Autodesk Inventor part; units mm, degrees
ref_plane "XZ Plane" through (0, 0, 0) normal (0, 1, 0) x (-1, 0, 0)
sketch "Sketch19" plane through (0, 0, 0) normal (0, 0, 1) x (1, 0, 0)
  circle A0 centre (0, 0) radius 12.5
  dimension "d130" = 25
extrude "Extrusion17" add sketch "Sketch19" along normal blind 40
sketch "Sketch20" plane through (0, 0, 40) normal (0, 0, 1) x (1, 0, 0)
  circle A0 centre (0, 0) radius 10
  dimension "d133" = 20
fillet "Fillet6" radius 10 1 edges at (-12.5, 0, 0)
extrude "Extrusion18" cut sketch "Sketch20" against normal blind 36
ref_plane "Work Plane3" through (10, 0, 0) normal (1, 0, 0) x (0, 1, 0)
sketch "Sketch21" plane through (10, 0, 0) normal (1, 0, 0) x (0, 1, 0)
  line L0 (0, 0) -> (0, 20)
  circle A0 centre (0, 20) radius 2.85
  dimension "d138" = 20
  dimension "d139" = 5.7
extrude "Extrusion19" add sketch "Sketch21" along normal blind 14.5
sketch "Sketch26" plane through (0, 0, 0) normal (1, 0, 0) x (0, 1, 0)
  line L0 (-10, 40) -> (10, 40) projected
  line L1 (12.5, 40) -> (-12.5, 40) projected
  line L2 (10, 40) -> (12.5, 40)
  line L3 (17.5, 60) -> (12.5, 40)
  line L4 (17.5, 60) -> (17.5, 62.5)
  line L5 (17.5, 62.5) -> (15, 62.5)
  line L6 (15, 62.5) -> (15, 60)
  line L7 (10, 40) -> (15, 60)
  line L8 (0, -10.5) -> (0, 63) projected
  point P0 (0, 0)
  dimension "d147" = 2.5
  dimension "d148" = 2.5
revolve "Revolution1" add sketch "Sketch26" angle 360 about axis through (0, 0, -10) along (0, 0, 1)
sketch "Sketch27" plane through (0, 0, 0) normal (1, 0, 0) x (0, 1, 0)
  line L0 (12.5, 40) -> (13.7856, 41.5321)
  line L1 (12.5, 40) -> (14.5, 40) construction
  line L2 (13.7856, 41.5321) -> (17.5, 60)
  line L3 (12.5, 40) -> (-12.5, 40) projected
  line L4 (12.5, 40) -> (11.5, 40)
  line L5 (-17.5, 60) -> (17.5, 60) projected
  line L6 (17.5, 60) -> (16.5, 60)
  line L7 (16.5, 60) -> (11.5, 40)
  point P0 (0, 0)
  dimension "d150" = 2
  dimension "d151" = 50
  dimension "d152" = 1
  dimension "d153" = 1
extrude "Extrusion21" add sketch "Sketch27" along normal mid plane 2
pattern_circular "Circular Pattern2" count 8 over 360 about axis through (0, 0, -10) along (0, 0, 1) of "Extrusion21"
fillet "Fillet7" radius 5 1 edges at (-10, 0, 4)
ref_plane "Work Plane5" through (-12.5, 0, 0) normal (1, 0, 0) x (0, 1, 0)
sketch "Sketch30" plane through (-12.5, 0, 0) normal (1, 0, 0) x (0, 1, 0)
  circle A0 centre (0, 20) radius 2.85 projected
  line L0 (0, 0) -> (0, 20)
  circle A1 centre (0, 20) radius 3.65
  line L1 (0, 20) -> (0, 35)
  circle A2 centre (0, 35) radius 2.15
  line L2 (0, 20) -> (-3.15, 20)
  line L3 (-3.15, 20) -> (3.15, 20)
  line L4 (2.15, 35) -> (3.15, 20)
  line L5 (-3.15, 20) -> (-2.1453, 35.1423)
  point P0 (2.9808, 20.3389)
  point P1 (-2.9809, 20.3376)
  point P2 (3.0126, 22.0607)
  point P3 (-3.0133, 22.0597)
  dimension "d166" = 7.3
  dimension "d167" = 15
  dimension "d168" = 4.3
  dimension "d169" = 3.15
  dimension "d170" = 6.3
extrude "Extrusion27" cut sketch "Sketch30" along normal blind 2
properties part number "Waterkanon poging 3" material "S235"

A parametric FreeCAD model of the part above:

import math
import FreeCAD as App
import Part
import Sketcher

V = App.Vector
Q = App.Units.Quantity


def edges_at(feature, points):
    """Names of the edges that pass closest to the given points."""
    edges = feature.Shape.Edges
    near = lambda p: min(range(len(edges)), key=lambda i: edges[i].distToShape(Part.Vertex(*p))[0])
    return sorted({f"Edge{near(p) + 1}" for p in points})

doc = App.newDocument("Part")
body = doc.addObject("PartDesign::Body", "Body")

sketch1 = doc.addObject("Sketcher::SketchObject", "Sketch")
body.addObject(sketch1)
sketch1.AttachmentSupport = (doc.XY_Plane, [""])
sketch1.MapMode = "FlatFace"
sketch1.addGeometry(Part.Circle(V(0, 0, 0), V(0, 0, 1), 12), False)
sketch1.addConstraint([
    Sketcher.Constraint("Coincident", 0, 3, -1, 1),
    Sketcher.Constraint("Diameter", 0, Q("25 mm")),
])
pad1 = doc.addObject("PartDesign::Pad", "Pad")
body.addObject(pad1)
pad1.Profile = sketch1
pad1.Length = 40
doc.recompute()

fillet = doc.addObject("PartDesign::Fillet", "Fillet")
body.addObject(fillet)
fillet.Base = (pad1, edges_at(pad1, [(-12.5, 0, 0)]))
fillet.Radius = 10

sketch2 = doc.addObject("Sketcher::SketchObject", "Sketch001")
body.addObject(sketch2)
sketch2.AttachmentSupport = (doc.XY_Plane, [""])
sketch2.MapMode = "FlatFace"
sketch2.AttachmentOffset = App.Placement(V(0, 0, 40), App.Rotation())
sketch2.addGeometry(Part.Circle(V(0, 0, 0), V(0, 0, 1), 10), False)
sketch2.addConstraint([
    Sketcher.Constraint("Coincident", 0, 3, -1, 1),
    Sketcher.Constraint("Diameter", 0, Q("20 mm")),
])
pocket1 = doc.addObject("PartDesign::Pocket", "Pocket")
body.addObject(pocket1)
pocket1.Profile = sketch2
pocket1.Length = 36

sketch3 = doc.addObject("Sketcher::SketchObject", "Sketch002")
body.addObject(sketch3)
sketch3.AttachmentSupport = (doc.YZ_Plane, [""])
sketch3.MapMode = "FlatFace"
sketch3.AttachmentOffset = App.Placement(V(0, 0, 10), App.Rotation())
sketch3.addGeometry(Part.Circle(V(0, 20, 0), V(0, 0, 1), 2.9), False)
sketch3.addConstraint([
    Sketcher.Constraint("PointOnObject", 0, 3, -2),
    Sketcher.Constraint("Diameter", 0, Q("5.7 mm")),
    Sketcher.Constraint("DistanceY", -1, 1, 0, 3, Q("20 mm")),
])
pad2 = doc.addObject("PartDesign::Pad", "Pad001")
body.addObject(pad2)
pad2.Profile = sketch3
pad2.Length = 14.5

sketch4 = doc.addObject("Sketcher::SketchObject", "Sketch003")
body.addObject(sketch4)
sketch4.AttachmentSupport = (doc.YZ_Plane, [""])
sketch4.MapMode = "FlatFace"
sketch4.addGeometry([
    Part.LineSegment(V(10, 40, 0), V(12.5, 40, 0)),
    Part.LineSegment(V(12.5, 40, 0), V(17.5, 60, 0)),
    Part.LineSegment(V(17.5, 60, 0), V(17.5, 62.5, 0)),
    Part.LineSegment(V(17.5, 62.5, 0), V(15, 62.5, 0)),
    Part.LineSegment(V(15, 62.5, 0), V(15, 60, 0)),
    Part.LineSegment(V(15, 60, 0), V(10, 40, 0)),
], False)
sketch4.addConstraint([
    Sketcher.Constraint("Coincident", 0, 2, 1, 1),
    Sketcher.Constraint("Coincident", 1, 2, 2, 1),
    Sketcher.Constraint("Coincident", 2, 2, 3, 1),
    Sketcher.Constraint("Coincident", 3, 2, 4, 1),
    Sketcher.Constraint("Coincident", 4, 2, 5, 1),
    Sketcher.Constraint("Coincident", 5, 2, 0, 1),
    Sketcher.Constraint("Horizontal", 0),
    Sketcher.Constraint("Vertical", 2),
    Sketcher.Constraint("Horizontal", 3),
    Sketcher.Constraint("Vertical", 4),
    Sketcher.Constraint("Parallel", 1, 5),
    Sketcher.Constraint("Horizontal", 1, 2, 4, 2),
    Sketcher.Constraint("Equal", 3, 2),
    Sketcher.Constraint("DistanceX", 0, 1, 0, 2, Q("2.5 mm")),
    Sketcher.Constraint("DistanceX", 0, 2, 3, 2, Q("2.5 mm")),
    Sketcher.Constraint("DistanceY", -1, 1, 0, 2, Q("40 mm")),
    Sketcher.Constraint("DistanceY", -1, 1, 1, 2, Q("60 mm")),
    Sketcher.Constraint("DistanceX", -1, 1, 3, 2, Q("15 mm")),
])
revolution = doc.addObject("PartDesign::Revolution", "Revolution")
body.addObject(revolution)
revolution.Profile = sketch4
revolution.ReferenceAxis = (sketch4, ["V_Axis"])
revolution.Angle = 360

sketch5 = doc.addObject("Sketcher::SketchObject", "Sketch004")
body.addObject(sketch5)
sketch5.AttachmentSupport = (doc.YZ_Plane, [""])
sketch5.MapMode = "FlatFace"
sketch5.addGeometry([
    Part.LineSegment(V(11.5, 40, 0), V(12.5, 40, 0)),
    Part.LineSegment(V(12.5, 40, 0), V(13.8, 41.5, 0)),
    Part.LineSegment(V(13.8, 41.5, 0), V(17.5, 60, 0)),
    Part.LineSegment(V(17.5, 60, 0), V(16.5, 60, 0)),
    Part.LineSegment(V(16.5, 60, 0), V(11.5, 40, 0)),
], False)
sketch5.addConstraint([
    Sketcher.Constraint("Coincident", 0, 2, 1, 1),
    Sketcher.Constraint("Coincident", 1, 2, 2, 1),
    Sketcher.Constraint("Coincident", 2, 2, 3, 1),
    Sketcher.Constraint("Coincident", 3, 2, 4, 1),
    Sketcher.Constraint("Coincident", 4, 2, 0, 1),
    Sketcher.Constraint("Horizontal", 0),
    Sketcher.Constraint("Horizontal", 3),
    Sketcher.Constraint("Equal", 0, 3),
    Sketcher.Constraint("DistanceX", 0, 1, 0, 2, Q("1 mm")),
    Sketcher.Constraint("Angle", 1, Q("49.9997 deg")),
    Sketcher.Constraint("Distance", 1, Q("2 mm")),
    Sketcher.Constraint("DistanceY", -1, 1, 0, 2, Q("40 mm")),
    Sketcher.Constraint("DistanceY", -1, 1, 2, 2, Q("60 mm")),
    Sketcher.Constraint("DistanceX", 0, 2, 2, 2, Q("5 mm")),
    Sketcher.Constraint("DistanceX", -1, 1, 0, 2, Q("12.5 mm")),
])
pad3 = doc.addObject("PartDesign::Pad", "Pad002")
body.addObject(pad3)
pad3.Profile = sketch5
pad3.Length = 2
pad3.Midplane = True
doc.recompute()

polarpattern = doc.addObject("PartDesign::PolarPattern", "PolarPattern")
body.addObject(polarpattern)
polarpattern.Originals = [pad3]
polarpattern.Axis = (doc.Z_Axis, [""])
polarpattern.Angle = 360
polarpattern.Occurrences = 8
body.Tip = polarpattern
doc.recompute()

fillet2 = doc.addObject("PartDesign::Fillet", "Fillet001")
body.addObject(fillet2)
fillet2.Base = (polarpattern, edges_at(polarpattern, [(-10, 0, 4)]))
fillet2.Radius = 5

sketch6 = doc.addObject("Sketcher::SketchObject", "Sketch005")
body.addObject(sketch6)
sketch6.AttachmentSupport = (doc.YZ_Plane, [""])
sketch6.MapMode = "FlatFace"
sketch6.AttachmentOffset = App.Placement(V(0, 0, -12.5), App.Rotation())
sketch6.addGeometry([
    Part.LineSegment(V(3, 22.1, 0), V(2.1, 35, 0)),
    Part.ArcOfCircle(Part.Circle(V(0, 35, 0), V(0, 0, 1), 2.1), math.radians(0), math.radians(176)),
    Part.LineSegment(V(-2.1, 35.1, 0), V(-3, 22.1, 0)),
    Part.ArcOfCircle(Part.Circle(V(0, 20, 0), V(0, 0, 1), 3.6), math.radians(146), math.radians(394)),
], False)
sketch6.addConstraint([
    Sketcher.Constraint("Coincident", 0, 2, 1, 1),
    Sketcher.Constraint("Tangent", 1, 2, 2, 1),
    Sketcher.Constraint("Coincident", 2, 2, 3, 1),
    Sketcher.Constraint("Coincident", 3, 2, 0, 1),
    Sketcher.Constraint("PointOnObject", 1, 3, -2),
    Sketcher.Constraint("PointOnObject", 3, 3, -2),
    Sketcher.Constraint("Horizontal", 1, 3, 0, 2),
    Sketcher.Constraint("Radius", 1, Q("2.15 mm")),
    Sketcher.Constraint("Radius", 3, Q("3.65 mm")),
    Sketcher.Constraint("DistanceY", 3, 3, 1, 3, Q("15 mm")),
    Sketcher.Constraint("DistanceY", -1, 1, 1, 3, Q("35 mm")),
    Sketcher.Constraint("Distance", 0, Q("12.968 mm")),
    Sketcher.Constraint("DistanceX", 2, 2, 1, 2, Q("0.868 mm")),
])
pocket2 = doc.addObject("PartDesign::Pocket", "Pocket001")
body.addObject(pocket2)
pocket2.Profile = sketch6
pocket2.Length = 2
pocket2.Reversed = True

doc.recompute()
